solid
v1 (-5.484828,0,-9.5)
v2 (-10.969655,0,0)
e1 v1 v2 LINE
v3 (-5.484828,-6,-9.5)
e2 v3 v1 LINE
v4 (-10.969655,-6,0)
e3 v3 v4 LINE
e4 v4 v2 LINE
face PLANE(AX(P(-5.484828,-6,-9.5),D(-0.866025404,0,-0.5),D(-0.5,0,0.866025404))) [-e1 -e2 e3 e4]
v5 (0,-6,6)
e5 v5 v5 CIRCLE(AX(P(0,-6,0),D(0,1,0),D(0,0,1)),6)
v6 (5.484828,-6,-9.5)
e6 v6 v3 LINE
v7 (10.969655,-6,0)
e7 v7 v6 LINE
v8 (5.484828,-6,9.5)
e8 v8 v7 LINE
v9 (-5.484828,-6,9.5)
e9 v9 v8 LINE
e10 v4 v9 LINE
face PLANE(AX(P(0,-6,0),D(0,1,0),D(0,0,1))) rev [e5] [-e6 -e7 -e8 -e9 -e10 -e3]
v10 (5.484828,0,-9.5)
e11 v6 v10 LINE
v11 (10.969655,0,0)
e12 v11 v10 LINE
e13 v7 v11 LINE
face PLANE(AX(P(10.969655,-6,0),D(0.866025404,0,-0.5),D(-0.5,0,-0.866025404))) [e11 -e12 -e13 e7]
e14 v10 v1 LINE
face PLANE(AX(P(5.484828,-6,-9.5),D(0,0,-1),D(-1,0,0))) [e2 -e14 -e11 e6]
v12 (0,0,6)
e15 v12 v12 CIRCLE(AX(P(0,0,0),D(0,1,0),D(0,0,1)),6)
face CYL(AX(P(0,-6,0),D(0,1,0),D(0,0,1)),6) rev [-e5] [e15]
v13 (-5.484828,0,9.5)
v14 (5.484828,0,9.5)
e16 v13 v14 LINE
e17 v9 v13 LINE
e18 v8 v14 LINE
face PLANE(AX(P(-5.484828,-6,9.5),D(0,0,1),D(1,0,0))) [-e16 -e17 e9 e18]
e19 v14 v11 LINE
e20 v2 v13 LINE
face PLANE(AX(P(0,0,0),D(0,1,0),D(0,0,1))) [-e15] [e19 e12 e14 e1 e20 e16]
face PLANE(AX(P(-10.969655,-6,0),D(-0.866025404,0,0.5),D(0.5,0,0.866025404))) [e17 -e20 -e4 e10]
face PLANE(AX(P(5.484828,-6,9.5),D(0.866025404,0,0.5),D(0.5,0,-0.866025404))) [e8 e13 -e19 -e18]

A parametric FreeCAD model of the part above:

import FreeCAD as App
import Part
import Sketcher
from FreeCAD import Vector
Q = App.Units.Quantity

doc = App.newDocument("Part")
body = doc.addObject("PartDesign::Body", "Body")

sketch1 = body.newObject("Sketcher::SketchObject", "Sketch")
sketch1.AttachmentSupport = (doc.getObject("XZ_Plane"), [""])
sketch1.MapMode = "FlatFace"
sketch1.addGeometry([
    Part.LineSegment(Vector(11, 0, 0), Vector(5, -10, 0)),
    Part.LineSegment(Vector(5, -10, 0), Vector(-5, -10, 0)),
    Part.LineSegment(Vector(-5, -10, 0), Vector(-11, 0, 0)),
    Part.LineSegment(Vector(-11, 0, 0), Vector(-5, 10, 0)),
    Part.LineSegment(Vector(-5, 10, 0), Vector(5, 10, 0)),
    Part.LineSegment(Vector(5, 10, 0), Vector(11, 0, 0)),
], False)
sketch1.addConstraint([
    Sketcher.Constraint("Coincident", 0, 2, 1, 1),
    Sketcher.Constraint("Coincident", 1, 2, 2, 1),
    Sketcher.Constraint("Coincident", 2, 2, 3, 1),
    Sketcher.Constraint("Coincident", 3, 2, 4, 1),
    Sketcher.Constraint("Coincident", 4, 2, 5, 1),
    Sketcher.Constraint("Coincident", 5, 2, 0, 1),
    Sketcher.Constraint("Horizontal", 1),
    Sketcher.Constraint("Horizontal", 4),
    Sketcher.Constraint("Symmetric", 0, 2, 3, 2, -1, 1),
    Sketcher.Constraint("Symmetric", 2, 2, 5, 2, -1, 1),
    Sketcher.Constraint("PointOnObject", 2, 2, -1),
    Sketcher.Constraint("Parallel", 2, 5),
    Sketcher.Constraint("Vertical", 1, 2, 3, 2),
    Sketcher.Constraint("Angle", 0, Q("-120 deg")),
    Sketcher.Constraint("DistanceY", 1, 2, 3, 2, Q("19 mm")),
    Sketcher.Constraint("DistanceX", 1, 2, 1, 1, Q("10.969655 mm")),
])
pad1 = body.newObject("PartDesign::Pad", "Pad")
pad1.Profile = sketch1
pad1.Length = 6

sketch2 = body.newObject("Sketcher::SketchObject", "Sketch001")
sketch2.AttachmentSupport = (doc.getObject("XZ_Plane"), [""])
sketch2.MapMode = "FlatFace"
sketch2.addGeometry(Part.Circle(Vector(0, 0, 0), Vector(0, 0, 1), 6), False)
sketch2.addConstraint([
    Sketcher.Constraint("Coincident", 0, 3, -1, 1),
    Sketcher.Constraint("Diameter", 0, Q("12 mm")),
])
pocket1 = body.newObject("PartDesign::Pocket", "Pocket")
pocket1.Profile = sketch2
pocket1.Length = 6
pocket1.Reversed = True

doc.recompute()
